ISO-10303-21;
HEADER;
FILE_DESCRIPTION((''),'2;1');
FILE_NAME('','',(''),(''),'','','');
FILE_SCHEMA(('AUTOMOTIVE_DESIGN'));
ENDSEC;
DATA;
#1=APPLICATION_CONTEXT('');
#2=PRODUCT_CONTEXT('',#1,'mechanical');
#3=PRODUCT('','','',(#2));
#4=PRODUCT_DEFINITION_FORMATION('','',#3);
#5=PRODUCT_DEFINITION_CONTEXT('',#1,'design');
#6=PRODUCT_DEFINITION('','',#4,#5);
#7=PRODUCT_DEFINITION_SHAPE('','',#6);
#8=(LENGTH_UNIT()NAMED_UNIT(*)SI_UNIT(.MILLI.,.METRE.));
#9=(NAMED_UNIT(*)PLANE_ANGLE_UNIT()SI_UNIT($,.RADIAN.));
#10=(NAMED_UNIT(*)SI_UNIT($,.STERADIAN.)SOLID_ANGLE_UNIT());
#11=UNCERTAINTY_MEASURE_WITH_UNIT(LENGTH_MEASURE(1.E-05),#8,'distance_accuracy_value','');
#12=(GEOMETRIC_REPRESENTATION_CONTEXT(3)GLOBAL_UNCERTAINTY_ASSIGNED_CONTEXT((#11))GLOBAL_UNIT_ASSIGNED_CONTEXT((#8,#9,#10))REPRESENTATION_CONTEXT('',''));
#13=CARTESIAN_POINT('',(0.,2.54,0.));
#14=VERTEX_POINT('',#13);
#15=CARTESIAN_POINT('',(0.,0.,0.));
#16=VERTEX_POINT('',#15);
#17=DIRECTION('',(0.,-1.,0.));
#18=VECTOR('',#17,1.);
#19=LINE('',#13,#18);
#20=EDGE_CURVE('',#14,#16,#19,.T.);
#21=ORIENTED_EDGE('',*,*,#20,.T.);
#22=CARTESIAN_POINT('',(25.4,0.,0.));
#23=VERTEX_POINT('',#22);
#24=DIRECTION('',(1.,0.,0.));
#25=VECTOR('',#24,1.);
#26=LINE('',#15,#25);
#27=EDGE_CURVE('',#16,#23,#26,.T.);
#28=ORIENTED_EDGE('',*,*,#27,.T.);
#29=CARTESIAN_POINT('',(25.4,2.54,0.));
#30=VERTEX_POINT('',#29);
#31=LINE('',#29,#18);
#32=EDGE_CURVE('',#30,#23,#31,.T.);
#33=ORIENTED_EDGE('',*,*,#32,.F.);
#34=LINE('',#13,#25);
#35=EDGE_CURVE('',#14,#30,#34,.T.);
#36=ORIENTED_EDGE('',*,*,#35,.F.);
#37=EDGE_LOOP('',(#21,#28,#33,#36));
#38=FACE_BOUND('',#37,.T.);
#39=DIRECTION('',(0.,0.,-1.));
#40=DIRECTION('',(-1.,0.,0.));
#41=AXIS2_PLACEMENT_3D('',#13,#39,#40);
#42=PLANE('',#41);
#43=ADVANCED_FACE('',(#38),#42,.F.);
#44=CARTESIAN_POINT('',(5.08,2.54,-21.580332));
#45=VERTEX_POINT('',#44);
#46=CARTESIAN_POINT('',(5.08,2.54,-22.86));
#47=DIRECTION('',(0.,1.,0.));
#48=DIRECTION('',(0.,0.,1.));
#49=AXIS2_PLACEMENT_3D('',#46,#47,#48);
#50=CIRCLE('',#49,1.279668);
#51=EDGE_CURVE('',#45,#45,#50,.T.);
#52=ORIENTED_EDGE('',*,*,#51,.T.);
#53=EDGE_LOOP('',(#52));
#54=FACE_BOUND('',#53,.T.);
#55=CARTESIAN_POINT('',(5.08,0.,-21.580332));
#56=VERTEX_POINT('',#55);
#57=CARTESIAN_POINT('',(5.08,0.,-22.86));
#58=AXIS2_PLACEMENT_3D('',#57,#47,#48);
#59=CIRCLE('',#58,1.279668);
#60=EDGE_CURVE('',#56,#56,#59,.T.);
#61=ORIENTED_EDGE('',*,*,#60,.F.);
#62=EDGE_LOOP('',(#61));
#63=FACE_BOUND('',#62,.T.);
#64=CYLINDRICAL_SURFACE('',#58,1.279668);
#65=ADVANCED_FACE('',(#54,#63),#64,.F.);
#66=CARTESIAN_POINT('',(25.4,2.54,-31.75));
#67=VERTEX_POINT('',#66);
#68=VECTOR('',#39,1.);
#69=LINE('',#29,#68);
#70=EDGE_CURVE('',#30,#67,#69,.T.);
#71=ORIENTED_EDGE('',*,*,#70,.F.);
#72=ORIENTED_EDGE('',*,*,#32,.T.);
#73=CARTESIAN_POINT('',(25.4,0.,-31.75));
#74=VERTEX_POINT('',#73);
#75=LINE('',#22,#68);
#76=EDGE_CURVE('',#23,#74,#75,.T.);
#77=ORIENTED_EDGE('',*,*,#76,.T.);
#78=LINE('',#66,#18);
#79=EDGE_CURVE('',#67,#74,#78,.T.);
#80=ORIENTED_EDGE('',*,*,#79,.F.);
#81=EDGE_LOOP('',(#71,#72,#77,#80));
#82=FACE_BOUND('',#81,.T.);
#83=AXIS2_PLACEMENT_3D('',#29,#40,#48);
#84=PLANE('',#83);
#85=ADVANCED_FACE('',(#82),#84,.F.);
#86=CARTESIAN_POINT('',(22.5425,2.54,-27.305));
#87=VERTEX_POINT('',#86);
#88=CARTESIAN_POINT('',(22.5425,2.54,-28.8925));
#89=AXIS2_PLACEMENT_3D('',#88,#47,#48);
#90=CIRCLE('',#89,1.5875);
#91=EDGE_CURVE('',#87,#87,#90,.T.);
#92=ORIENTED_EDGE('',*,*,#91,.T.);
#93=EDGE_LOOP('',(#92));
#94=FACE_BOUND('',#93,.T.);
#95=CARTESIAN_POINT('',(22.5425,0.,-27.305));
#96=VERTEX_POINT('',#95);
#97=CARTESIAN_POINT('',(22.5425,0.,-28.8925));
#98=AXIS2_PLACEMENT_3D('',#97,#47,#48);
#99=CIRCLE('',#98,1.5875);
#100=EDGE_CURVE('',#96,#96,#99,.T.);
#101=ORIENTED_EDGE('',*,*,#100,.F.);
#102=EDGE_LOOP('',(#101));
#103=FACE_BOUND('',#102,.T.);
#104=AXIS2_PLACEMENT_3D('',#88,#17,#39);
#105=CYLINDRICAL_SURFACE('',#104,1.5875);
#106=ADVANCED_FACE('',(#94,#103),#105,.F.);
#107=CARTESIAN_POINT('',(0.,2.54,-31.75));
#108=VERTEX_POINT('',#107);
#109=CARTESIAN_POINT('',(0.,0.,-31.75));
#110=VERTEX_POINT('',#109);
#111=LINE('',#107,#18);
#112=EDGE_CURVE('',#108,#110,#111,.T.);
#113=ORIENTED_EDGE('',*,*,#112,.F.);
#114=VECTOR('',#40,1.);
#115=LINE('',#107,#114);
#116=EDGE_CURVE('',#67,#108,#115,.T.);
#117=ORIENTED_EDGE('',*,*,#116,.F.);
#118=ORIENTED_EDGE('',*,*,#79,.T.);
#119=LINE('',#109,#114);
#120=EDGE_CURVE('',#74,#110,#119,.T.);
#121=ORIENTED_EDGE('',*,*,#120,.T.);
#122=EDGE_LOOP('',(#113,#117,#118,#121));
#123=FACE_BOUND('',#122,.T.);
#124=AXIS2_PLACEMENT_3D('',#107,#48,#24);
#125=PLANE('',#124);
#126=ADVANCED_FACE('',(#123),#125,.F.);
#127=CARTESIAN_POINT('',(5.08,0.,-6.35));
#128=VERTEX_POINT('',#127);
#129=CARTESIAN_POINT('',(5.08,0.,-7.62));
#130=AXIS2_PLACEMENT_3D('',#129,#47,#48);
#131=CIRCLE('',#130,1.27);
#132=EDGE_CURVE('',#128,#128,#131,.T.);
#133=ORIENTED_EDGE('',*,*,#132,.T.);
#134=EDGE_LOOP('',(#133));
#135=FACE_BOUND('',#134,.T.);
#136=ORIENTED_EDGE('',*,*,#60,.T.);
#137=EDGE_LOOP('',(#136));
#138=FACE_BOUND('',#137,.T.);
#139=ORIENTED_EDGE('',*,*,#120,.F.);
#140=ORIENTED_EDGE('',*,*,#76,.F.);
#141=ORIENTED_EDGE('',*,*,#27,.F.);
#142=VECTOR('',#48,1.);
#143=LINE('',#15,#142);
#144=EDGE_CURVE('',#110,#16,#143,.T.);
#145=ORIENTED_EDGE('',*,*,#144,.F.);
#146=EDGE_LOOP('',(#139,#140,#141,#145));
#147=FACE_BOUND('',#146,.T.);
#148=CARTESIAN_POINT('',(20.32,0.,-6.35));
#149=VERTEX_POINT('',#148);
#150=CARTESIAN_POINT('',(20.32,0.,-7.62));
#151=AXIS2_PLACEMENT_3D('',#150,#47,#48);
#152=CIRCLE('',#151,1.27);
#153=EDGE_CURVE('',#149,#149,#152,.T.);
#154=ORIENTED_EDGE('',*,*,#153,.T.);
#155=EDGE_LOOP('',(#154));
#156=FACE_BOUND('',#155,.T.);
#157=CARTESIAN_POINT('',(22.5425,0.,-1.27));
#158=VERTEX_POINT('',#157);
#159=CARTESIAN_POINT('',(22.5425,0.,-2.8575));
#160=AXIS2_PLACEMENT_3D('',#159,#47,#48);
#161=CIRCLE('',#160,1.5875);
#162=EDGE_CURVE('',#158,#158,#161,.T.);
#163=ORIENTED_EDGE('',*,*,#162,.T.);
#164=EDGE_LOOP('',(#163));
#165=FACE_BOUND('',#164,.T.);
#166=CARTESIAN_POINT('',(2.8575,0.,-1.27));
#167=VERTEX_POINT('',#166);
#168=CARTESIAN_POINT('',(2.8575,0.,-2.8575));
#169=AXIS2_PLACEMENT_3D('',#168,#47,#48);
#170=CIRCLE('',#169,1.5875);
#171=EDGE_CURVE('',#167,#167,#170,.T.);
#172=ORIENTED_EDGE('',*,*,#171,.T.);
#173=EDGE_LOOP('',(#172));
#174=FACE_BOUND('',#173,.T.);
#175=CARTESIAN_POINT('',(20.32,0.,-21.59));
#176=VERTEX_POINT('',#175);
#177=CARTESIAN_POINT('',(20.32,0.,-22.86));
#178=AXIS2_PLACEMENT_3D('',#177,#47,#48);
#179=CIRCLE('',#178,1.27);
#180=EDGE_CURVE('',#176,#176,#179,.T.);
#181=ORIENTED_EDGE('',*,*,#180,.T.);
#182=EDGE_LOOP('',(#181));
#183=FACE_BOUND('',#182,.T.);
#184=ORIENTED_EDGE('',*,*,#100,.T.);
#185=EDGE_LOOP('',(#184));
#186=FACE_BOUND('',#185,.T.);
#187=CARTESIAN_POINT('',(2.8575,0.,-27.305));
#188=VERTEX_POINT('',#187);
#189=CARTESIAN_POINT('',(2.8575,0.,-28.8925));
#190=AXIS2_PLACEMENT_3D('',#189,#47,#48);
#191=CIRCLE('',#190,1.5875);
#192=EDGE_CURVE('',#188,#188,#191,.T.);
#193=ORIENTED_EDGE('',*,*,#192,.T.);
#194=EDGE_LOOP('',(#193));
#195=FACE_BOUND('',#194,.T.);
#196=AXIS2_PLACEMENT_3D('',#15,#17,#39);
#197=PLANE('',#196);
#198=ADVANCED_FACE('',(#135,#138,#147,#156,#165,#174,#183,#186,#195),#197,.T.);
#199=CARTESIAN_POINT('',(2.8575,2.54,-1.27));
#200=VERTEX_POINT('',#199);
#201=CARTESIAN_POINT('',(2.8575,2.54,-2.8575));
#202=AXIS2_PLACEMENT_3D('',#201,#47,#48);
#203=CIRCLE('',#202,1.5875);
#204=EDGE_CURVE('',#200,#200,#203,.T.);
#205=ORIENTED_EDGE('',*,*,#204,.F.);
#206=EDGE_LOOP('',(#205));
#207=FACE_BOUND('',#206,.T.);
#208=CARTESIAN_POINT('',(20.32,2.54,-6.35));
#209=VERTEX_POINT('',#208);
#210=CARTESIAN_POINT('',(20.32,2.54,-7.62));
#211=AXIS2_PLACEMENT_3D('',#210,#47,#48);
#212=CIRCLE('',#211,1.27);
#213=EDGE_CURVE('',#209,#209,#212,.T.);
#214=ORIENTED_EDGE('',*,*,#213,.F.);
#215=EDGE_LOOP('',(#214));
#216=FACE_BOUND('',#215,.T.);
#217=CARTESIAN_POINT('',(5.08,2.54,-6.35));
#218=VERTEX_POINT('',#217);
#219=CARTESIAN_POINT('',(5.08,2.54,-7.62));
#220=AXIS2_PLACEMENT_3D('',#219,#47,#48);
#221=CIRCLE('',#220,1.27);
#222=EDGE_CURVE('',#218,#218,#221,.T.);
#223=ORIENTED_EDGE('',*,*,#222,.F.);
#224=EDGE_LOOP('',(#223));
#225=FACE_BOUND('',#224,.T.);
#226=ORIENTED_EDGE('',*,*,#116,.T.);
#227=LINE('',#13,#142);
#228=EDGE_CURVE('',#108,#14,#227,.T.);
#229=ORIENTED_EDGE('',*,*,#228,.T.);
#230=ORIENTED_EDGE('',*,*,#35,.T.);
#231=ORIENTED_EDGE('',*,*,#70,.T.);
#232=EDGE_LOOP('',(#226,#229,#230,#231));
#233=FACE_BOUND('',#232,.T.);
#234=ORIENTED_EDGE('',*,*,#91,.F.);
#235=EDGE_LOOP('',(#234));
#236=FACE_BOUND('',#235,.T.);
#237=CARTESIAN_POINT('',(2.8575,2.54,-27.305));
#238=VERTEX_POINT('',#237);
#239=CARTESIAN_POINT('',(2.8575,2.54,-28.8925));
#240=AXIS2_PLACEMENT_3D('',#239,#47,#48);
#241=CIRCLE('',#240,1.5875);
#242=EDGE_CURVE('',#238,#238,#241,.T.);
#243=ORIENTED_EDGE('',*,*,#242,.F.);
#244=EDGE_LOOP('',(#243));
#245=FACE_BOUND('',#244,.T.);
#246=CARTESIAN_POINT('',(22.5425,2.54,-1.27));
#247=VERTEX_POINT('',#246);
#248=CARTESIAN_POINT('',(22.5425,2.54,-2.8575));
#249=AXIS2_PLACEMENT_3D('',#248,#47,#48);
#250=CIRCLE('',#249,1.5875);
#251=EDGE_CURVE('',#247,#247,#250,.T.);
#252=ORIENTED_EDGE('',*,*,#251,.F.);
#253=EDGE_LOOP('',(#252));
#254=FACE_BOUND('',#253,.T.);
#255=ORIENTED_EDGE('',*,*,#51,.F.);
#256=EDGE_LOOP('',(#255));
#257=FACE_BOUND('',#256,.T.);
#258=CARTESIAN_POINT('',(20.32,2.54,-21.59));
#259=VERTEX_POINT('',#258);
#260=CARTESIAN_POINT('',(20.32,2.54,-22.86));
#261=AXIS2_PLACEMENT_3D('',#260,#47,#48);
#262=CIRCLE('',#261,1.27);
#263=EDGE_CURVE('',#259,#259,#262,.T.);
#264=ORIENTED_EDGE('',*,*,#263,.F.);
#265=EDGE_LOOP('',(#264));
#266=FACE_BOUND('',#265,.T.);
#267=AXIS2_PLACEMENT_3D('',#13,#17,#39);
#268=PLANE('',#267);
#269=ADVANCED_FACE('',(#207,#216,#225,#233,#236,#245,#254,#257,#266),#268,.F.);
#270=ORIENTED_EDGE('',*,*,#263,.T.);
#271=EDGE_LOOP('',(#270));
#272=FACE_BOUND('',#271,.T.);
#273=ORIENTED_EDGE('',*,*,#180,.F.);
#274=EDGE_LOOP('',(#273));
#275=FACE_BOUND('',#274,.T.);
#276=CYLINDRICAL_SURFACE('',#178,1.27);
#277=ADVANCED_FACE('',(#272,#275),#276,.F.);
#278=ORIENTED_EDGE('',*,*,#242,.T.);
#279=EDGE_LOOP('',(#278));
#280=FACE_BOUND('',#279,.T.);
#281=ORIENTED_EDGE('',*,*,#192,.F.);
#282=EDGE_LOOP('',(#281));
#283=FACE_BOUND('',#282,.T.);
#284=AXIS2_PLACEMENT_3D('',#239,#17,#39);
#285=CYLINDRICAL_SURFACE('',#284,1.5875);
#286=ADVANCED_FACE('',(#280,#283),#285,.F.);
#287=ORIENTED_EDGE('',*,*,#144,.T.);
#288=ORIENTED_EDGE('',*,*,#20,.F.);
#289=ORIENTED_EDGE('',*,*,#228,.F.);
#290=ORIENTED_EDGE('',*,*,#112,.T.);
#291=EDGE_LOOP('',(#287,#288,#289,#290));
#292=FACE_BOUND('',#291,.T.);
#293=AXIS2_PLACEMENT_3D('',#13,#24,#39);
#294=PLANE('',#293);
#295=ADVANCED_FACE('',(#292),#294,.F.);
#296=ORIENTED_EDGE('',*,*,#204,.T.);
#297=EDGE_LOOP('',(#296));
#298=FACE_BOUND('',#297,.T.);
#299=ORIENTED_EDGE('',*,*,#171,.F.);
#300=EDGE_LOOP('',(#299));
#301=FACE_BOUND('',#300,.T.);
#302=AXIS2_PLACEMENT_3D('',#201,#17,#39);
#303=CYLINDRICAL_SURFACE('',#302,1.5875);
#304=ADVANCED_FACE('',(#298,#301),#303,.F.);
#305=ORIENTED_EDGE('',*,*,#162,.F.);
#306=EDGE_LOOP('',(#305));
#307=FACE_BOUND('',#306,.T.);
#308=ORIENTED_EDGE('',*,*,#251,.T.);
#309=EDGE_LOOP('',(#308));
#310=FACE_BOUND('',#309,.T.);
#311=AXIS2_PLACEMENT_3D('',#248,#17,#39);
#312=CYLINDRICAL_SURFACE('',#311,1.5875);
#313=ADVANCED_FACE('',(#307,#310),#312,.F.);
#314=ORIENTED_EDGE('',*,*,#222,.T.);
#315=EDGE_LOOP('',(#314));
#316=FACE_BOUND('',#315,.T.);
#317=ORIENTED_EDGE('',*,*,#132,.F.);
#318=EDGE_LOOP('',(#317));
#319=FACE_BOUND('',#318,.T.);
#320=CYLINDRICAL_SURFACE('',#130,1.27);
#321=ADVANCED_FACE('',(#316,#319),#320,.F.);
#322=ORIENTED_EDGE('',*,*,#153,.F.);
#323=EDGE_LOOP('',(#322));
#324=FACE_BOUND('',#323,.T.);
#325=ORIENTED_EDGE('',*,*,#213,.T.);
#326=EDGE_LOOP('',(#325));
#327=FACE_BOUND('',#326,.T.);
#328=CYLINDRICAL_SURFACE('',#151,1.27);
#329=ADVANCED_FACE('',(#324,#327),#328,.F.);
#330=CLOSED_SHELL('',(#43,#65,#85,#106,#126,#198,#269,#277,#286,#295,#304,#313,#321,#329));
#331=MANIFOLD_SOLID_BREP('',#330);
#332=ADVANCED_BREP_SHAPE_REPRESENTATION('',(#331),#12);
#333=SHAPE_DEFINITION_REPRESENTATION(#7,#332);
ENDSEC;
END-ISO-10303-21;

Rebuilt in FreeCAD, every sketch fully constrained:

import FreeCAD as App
import Part
import Sketcher

V = App.Vector
Q = App.Units.Quantity


def add_polygon(sketch, points):
    """Adds a closed chain of lines whose ends are joined by coincident constraints."""
    first, n = sketch.GeometryCount, len(points)
    for a, b in zip(points, points[1:] + points[:1]):
        sketch.addGeometry(Part.LineSegment(App.Vector(*a, 0), App.Vector(*b, 0)), False)
    for i in range(n):
        sketch.addConstraint(Sketcher.Constraint("Coincident", first + i, 2, first + (i + 1) % n, 1))

doc = App.newDocument("Part")
body = doc.addObject("PartDesign::Body", "Body")

# Sketch on XZ plane
sketch1 = body.newObject("Sketcher::SketchObject", "Sketch")
sketch1.AttachmentSupport = (doc.getObject("XZ_Plane"), [""])
sketch1.MapMode = "FlatFace"
add_polygon(sketch1, [(0, -31.75), (0, 0), (25.4, 0), (25.4, -31.75)])  # lines 0-3
sketch1.addGeometry(Part.Circle(V(2.8575, -2.8575, 0), V(0, 0, 1), 1.5875), False)  # 4
sketch1.addGeometry(Part.Circle(V(22.5425, -2.8575, 0), V(0, 0, 1), 1.5875), False)  # 5
sketch1.addGeometry(Part.Circle(V(2.8575, -28.8925, 0), V(0, 0, 1), 1.5875), False)  # 6
sketch1.addGeometry(Part.Circle(V(22.5425, -28.8925, 0), V(0, 0, 1), 1.5875), False)  # 7
sketch1.addConstraint(Sketcher.Constraint("Vertical", 0))
sketch1.addConstraint(Sketcher.Constraint("Horizontal", 1))
sketch1.addConstraint(Sketcher.Constraint("Vertical", 2))
sketch1.addConstraint(Sketcher.Constraint("Horizontal", 3))
sketch1.addConstraint(Sketcher.Constraint("Coincident", 0, 2, -1, 1))
sketch1.addConstraint(Sketcher.Constraint("Equal", 4, 5))
sketch1.addConstraint(Sketcher.Constraint("Equal", 5, 6))
sketch1.addConstraint(Sketcher.Constraint("Equal", 6, 7))
sketch1.addConstraint(Sketcher.Constraint("Horizontal", 4, 3, 5, 3))
sketch1.addConstraint(Sketcher.Constraint("Horizontal", 6, 3, 7, 3))
sketch1.addConstraint(Sketcher.Constraint("Vertical", 4, 3, 6, 3))
sketch1.addConstraint(Sketcher.Constraint("Vertical", 5, 3, 7, 3))
sketch1.addConstraint(Sketcher.Constraint("DistanceX", 1, 1, 1, 2, Q("1 in")))
sketch1.addConstraint(Sketcher.Constraint("Diameter", 4, Q("0.125 in")))
sketch1.addConstraint(Sketcher.Constraint("DistanceY", 0, 1, 0, 2, Q("1.25 in")))
sketch1.addConstraint(Sketcher.Constraint("DistanceX", 4, 3, 5, 3, Q("0.775 in")))
sketch1.addConstraint(Sketcher.Constraint("DistanceY", 6, 3, 4, 3, Q("1.025 in")))
sketch1.addConstraint(Sketcher.Constraint("DistanceX", -1, 1, 4, 3, Q("0.1125 in")))
sketch1.addConstraint(Sketcher.Constraint("DistanceY", 4, 3, -1, 1, Q("0.1125 in")))
pad1 = body.newObject("PartDesign::Pad", "Pad")
pad1.Profile = sketch1
pad1.Length = Q("0.1 in")
pad1.Reversed = True

# Sketch on XZ plane
sketch2 = body.newObject("Sketcher::SketchObject", "Sketch001")
sketch2.AttachmentSupport = (doc.getObject("XZ_Plane"), [""])
sketch2.MapMode = "FlatFace"
sketch2.AttachmentOffset = App.Placement(V(0, 0, -0.1 * 25.4), App.Rotation())
sketch2.addGeometry(Part.Circle(V(5.08, -22.86, 0), V(0, 0, 1), 1.279668), False)
sketch2.addGeometry(Part.Circle(V(20.32, -22.86, 0), V(0, 0, 1), 1.27), False)
sketch2.addGeometry(Part.Circle(V(5.08, -7.62, 0), V(0, 0, 1), 1.27), False)
sketch2.addGeometry(Part.Circle(V(20.32, -7.62, 0), V(0, 0, 1), 1.27), False)
sketch2.addConstraint(Sketcher.Constraint("Equal", 1, 2))
sketch2.addConstraint(Sketcher.Constraint("Equal", 2, 3))
sketch2.addConstraint(Sketcher.Constraint("Horizontal", 0, 3, 1, 3))
sketch2.addConstraint(Sketcher.Constraint("Horizontal", 2, 3, 3, 3))
sketch2.addConstraint(Sketcher.Constraint("Vertical", 0, 3, 2, 3))
sketch2.addConstraint(Sketcher.Constraint("Vertical", 1, 3, 3, 3))
sketch2.addConstraint(Sketcher.Constraint("Diameter", 1, Q("0.1 in")))
sketch2.addConstraint(Sketcher.Constraint("DistanceX", -1, 1, 0, 3, Q("0.2 in")))
sketch2.addConstraint(Sketcher.Constraint("DistanceY", 0, 3, -1, 1, Q("0.9 in")))
sketch2.addConstraint(Sketcher.Constraint("DistanceX", -1, 1, 1, 3, Q("0.8 in")))
sketch2.addConstraint(Sketcher.Constraint("DistanceY", 2, 3, -1, 1, Q("0.3 in")))
sketch2.addConstraint(Sketcher.Constraint("Diameter", 0, Q("2.559337 mm")))
pocket1 = body.newObject("PartDesign::Pocket", "Pocket")
pocket1.Profile = sketch2
pocket1.Type = "ThroughAll"
pocket1.Reversed = True

doc.recompute()
